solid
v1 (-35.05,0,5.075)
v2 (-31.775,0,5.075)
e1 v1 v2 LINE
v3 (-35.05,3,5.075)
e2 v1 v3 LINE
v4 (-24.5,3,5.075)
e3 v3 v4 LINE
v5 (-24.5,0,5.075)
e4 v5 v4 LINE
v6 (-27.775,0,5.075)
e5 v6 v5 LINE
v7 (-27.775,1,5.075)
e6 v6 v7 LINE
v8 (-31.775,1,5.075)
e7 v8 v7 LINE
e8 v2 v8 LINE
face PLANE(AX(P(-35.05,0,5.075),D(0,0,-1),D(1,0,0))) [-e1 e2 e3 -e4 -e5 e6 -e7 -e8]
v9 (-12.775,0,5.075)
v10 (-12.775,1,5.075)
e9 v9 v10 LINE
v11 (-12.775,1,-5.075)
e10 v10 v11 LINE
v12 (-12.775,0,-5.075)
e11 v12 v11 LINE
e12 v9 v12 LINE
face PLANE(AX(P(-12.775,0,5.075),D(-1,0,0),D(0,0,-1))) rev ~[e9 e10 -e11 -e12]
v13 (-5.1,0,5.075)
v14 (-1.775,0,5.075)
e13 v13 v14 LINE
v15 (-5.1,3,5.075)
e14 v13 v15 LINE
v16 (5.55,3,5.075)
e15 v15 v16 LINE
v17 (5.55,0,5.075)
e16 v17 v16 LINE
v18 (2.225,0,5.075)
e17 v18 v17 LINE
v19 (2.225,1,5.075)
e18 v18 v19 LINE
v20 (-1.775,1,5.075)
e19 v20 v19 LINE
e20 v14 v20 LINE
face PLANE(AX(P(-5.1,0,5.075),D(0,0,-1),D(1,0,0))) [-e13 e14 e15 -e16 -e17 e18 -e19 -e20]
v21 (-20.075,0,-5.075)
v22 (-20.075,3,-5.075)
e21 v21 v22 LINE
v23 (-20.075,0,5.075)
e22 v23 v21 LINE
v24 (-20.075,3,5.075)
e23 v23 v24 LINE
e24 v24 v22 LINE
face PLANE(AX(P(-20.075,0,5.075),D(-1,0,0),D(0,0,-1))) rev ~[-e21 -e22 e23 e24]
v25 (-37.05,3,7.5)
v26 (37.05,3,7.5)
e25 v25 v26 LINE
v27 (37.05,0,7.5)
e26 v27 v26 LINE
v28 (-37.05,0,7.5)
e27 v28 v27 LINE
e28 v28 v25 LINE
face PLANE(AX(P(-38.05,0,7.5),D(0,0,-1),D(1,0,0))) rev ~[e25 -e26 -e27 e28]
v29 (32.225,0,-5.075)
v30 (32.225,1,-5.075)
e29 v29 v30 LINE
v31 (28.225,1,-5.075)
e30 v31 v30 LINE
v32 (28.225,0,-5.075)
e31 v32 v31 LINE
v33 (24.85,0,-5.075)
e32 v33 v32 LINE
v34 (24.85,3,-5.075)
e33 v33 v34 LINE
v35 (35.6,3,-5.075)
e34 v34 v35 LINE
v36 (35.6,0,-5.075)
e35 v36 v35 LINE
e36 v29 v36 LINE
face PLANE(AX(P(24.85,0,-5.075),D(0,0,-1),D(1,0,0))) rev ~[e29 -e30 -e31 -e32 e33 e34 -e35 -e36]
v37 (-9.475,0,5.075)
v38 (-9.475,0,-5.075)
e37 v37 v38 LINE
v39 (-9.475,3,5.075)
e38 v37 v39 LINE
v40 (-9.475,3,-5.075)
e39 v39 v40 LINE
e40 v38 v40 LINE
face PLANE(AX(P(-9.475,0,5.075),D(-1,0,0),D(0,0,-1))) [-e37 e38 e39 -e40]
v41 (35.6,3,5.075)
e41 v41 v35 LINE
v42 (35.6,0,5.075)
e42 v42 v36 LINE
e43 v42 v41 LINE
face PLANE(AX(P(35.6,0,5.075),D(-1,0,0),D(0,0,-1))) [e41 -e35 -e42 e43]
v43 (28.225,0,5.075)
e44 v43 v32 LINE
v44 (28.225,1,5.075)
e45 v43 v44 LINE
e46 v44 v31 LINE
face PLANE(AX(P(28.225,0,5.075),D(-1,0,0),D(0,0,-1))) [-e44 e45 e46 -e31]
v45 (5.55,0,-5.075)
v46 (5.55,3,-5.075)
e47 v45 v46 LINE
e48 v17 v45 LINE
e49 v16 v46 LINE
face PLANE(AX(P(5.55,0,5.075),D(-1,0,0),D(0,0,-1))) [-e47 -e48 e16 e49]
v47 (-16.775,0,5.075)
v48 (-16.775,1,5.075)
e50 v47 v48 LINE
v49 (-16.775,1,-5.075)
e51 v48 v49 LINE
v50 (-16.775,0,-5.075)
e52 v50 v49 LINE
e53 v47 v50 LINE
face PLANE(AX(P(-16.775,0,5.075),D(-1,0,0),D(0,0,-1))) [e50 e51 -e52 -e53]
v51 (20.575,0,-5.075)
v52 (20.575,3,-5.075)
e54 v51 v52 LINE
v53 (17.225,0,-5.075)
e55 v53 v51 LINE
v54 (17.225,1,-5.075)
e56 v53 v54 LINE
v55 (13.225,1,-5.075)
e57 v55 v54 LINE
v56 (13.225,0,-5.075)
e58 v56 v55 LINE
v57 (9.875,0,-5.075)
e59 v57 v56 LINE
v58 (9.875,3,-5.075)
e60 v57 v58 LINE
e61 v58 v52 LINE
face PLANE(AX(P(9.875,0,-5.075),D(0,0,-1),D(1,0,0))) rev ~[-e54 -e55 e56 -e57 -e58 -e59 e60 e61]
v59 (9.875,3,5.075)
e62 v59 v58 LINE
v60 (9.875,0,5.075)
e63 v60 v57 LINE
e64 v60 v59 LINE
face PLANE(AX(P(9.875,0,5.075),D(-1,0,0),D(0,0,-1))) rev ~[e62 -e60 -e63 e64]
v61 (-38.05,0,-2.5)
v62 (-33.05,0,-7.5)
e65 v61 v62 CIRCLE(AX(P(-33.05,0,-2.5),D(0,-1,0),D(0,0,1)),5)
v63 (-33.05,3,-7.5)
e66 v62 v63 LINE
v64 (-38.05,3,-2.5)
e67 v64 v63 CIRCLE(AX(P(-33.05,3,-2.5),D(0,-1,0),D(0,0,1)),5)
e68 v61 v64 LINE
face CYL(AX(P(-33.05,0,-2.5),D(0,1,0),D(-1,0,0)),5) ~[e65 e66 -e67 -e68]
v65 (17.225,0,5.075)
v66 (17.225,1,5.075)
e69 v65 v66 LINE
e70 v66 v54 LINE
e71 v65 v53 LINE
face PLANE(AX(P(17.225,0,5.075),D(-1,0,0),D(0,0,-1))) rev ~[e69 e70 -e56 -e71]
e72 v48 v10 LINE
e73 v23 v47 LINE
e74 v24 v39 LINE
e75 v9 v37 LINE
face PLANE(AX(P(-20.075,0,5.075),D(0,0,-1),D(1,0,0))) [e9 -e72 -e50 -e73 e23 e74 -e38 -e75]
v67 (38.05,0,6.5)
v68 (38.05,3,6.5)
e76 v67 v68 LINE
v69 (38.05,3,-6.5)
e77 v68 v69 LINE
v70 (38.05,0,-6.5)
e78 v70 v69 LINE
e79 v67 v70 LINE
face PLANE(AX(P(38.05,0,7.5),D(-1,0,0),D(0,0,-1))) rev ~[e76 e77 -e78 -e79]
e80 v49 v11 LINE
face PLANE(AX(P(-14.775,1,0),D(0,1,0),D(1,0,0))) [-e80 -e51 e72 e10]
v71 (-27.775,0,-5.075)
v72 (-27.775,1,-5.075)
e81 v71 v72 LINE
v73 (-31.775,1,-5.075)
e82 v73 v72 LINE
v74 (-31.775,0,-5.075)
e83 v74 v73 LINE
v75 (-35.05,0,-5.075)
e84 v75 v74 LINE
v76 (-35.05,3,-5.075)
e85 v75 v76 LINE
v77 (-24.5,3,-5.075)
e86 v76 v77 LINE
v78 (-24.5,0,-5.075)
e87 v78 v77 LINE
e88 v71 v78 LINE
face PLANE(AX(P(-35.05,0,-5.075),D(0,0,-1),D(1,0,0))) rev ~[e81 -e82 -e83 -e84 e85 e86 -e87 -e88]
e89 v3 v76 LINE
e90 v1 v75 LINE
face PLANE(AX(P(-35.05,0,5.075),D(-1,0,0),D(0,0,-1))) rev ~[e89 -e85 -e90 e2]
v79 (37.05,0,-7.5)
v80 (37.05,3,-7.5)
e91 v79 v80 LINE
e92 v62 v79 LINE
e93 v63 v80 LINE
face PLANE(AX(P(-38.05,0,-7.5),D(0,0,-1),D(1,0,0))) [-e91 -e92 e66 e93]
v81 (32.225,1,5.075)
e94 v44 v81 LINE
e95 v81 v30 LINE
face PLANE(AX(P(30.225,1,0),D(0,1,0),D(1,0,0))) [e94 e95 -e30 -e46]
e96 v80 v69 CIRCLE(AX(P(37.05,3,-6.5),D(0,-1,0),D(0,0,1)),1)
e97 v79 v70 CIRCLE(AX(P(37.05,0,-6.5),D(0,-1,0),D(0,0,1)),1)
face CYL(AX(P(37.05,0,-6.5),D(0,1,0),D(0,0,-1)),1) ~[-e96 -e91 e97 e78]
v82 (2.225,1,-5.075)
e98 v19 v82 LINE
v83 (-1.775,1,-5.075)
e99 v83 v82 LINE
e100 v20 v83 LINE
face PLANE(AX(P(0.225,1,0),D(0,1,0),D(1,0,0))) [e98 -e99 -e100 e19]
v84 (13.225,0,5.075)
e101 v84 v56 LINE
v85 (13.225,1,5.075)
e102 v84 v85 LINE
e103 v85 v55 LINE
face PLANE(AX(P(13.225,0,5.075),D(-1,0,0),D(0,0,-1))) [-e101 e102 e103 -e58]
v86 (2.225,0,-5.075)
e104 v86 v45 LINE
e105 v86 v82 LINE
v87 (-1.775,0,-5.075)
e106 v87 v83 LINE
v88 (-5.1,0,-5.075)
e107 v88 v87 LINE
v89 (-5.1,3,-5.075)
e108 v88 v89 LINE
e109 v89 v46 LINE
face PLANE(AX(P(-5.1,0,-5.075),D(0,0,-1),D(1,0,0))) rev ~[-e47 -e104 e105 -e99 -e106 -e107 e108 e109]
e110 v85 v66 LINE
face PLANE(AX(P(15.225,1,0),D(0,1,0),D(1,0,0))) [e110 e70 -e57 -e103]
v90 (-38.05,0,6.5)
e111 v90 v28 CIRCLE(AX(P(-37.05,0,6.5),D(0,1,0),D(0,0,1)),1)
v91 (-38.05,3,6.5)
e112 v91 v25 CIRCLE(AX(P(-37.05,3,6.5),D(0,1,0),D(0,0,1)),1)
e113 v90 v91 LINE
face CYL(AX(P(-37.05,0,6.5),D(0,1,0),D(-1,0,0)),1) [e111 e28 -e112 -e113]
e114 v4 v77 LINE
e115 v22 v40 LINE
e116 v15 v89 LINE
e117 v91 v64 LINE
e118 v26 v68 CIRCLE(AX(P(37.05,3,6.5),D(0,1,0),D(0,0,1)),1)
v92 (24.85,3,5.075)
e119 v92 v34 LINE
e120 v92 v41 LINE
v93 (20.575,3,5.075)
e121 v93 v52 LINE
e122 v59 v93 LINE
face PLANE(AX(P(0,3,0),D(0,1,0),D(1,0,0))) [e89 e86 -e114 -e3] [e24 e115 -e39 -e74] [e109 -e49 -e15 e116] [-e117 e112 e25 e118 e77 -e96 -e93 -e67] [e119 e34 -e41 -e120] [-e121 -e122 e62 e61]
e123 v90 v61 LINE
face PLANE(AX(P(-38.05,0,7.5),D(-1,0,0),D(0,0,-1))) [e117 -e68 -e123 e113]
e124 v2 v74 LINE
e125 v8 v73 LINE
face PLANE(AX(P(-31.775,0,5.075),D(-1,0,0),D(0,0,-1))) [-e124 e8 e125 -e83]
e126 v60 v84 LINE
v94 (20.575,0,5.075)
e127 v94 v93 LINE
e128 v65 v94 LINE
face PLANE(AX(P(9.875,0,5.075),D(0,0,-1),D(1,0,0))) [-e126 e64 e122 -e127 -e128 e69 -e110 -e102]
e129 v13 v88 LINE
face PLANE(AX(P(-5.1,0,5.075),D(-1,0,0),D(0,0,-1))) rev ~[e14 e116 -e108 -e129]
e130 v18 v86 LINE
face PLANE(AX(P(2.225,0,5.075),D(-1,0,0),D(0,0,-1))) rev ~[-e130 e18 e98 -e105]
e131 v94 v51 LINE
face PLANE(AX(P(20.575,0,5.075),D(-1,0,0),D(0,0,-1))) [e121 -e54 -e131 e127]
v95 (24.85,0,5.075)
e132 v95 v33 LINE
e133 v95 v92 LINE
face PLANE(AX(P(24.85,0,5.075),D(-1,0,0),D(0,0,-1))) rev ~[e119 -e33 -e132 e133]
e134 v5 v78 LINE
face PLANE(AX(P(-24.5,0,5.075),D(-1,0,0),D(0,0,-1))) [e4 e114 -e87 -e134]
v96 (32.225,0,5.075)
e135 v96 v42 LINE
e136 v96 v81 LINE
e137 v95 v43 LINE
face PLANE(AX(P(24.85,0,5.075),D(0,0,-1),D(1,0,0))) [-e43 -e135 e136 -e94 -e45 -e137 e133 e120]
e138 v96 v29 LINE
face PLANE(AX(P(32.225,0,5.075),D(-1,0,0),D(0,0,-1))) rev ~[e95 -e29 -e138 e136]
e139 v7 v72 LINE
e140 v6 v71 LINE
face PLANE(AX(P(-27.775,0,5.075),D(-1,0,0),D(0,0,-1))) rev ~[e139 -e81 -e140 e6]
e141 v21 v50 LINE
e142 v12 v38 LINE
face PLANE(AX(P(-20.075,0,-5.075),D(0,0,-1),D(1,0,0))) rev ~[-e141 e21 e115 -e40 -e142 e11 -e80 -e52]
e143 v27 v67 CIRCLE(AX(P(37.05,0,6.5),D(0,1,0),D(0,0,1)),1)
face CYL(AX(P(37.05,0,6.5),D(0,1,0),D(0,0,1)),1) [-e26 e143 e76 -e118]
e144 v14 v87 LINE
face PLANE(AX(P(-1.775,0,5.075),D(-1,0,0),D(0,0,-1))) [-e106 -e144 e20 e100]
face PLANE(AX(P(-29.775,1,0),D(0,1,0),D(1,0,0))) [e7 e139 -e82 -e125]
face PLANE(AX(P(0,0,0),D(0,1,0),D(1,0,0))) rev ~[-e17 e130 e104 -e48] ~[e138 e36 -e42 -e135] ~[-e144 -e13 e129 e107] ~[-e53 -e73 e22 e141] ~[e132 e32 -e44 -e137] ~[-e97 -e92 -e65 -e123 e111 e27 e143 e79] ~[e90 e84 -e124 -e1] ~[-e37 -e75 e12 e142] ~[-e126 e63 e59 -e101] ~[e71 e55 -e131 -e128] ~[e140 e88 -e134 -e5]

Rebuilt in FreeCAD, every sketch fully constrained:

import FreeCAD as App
import Part
import Sketcher

V = App.Vector


def edges_at(feature, points):
    """Names of the edges that pass closest to the given points."""
    edges = feature.Shape.Edges
    near = lambda p: min(range(len(edges)), key=lambda i: edges[i].distToShape(Part.Vertex(*p))[0])
    return sorted({f"Edge{near(p) + 1}" for p in points})


def add_polygon(sketch, points):
    """Adds a closed chain of lines whose ends are joined by coincident constraints."""
    first, n = sketch.GeometryCount, len(points)
    for a, b in zip(points, points[1:] + points[:1]):
        sketch.addGeometry(Part.LineSegment(App.Vector(*a, 0), App.Vector(*b, 0)), False)
    for i in range(n):
        sketch.addConstraint(Sketcher.Constraint("Coincident", first + i, 2, first + (i + 1) % n, 1))

doc = App.newDocument("Part")
params = doc.addObject("Spreadsheet::Sheet", "Params")
for row, (alias, value) in enumerate([
    ("sketch1_height", "15 mm"),
    ("sketch1_width", "76.1 mm"),
    ("sketch1_width2", "10.6 mm"),
    ("sketch1_width3", "10.7 mm"),
    ("sketch1_width4", "10.55 mm"),
    ("pad1_length", "3 mm"),
    ("sketch2_width", "4 mm"),
    ("sketch2_height", "10.15 mm"),
    ("pad2_length", "1 mm"),
    ("fillet_radius", "5 mm"),
    ("fillet2_radius", "1 mm"),
], start=1):
    params.set(f"A{row}", alias)
    params.set(f"B{row}", "=" + value)
    params.setAlias(f"B{row}", alias)

body = doc.addObject("PartDesign::Body", "Body")

# Sketch on XZ plane
sketch1 = body.newObject("Sketcher::SketchObject", "Sketch")
sketch1.AttachmentSupport = (doc.getObject("XZ_Plane"), [""])
sketch1.MapMode = "FlatFace"
add_polygon(sketch1, [(-38.05, -7.5), (-38.05, 7.5), (38.05, 7.5), (38.05, -7.5)])  # lines 0-3
add_polygon(sketch1, [(-24.5, 5.075), (-35.05, 5.075), (-35.05, -5.075), (-24.5, -5.075)])  # lines 4-7
add_polygon(sketch1, [(-9.475, 5.075), (-20.075, 5.075), (-20.075, -5.075), (-9.475, -5.075)])  # lines 8-11
add_polygon(sketch1, [(5.55, 5.075), (-5.1, 5.075), (-5.1, -5.075), (5.55, -5.075)])  # lines 12-15
add_polygon(sketch1, [(20.575, 5.075), (9.875, 5.075), (9.875, -5.075), (20.575, -5.075)])  # lines 16-19
add_polygon(sketch1, [(35.6, 5.075), (24.85, 5.075), (24.85, -5.075), (35.6, -5.075)])  # lines 20-23
sketch1.addConstraint(Sketcher.Constraint("Vertical", 0))
sketch1.addConstraint(Sketcher.Constraint("Horizontal", 1))
sketch1.addConstraint(Sketcher.Constraint("Vertical", 2))
sketch1.addConstraint(Sketcher.Constraint("Horizontal", 3))
sketch1.addConstraint(Sketcher.Constraint("Horizontal", 4))
sketch1.addConstraint(Sketcher.Constraint("Vertical", 5))
sketch1.addConstraint(Sketcher.Constraint("Horizontal", 6))
sketch1.addConstraint(Sketcher.Constraint("Vertical", 7))
sketch1.addConstraint(Sketcher.Constraint("Horizontal", 8))
sketch1.addConstraint(Sketcher.Constraint("Vertical", 9))
sketch1.addConstraint(Sketcher.Constraint("Horizontal", 10))
sketch1.addConstraint(Sketcher.Constraint("Vertical", 11))
sketch1.addConstraint(Sketcher.Constraint("Horizontal", 12))
sketch1.addConstraint(Sketcher.Constraint("Vertical", 13))
sketch1.addConstraint(Sketcher.Constraint("Horizontal", 14))
sketch1.addConstraint(Sketcher.Constraint("Vertical", 15))
sketch1.addConstraint(Sketcher.Constraint("Horizontal", 16))
sketch1.addConstraint(Sketcher.Constraint("Vertical", 17))
sketch1.addConstraint(Sketcher.Constraint("Horizontal", 18))
sketch1.addConstraint(Sketcher.Constraint("Vertical", 19))
sketch1.addConstraint(Sketcher.Constraint("Horizontal", 20))
sketch1.addConstraint(Sketcher.Constraint("Vertical", 21))
sketch1.addConstraint(Sketcher.Constraint("Horizontal", 22))
sketch1.addConstraint(Sketcher.Constraint("Vertical", 23))
sketch1.addConstraint(Sketcher.Constraint("Symmetric", 0, 2, 2, 2, -1, 1))
sketch1.addConstraint(Sketcher.Constraint("Horizontal", 7, 2, 8, 2))
sketch1.addConstraint(Sketcher.Constraint("Horizontal", 6, 2, 9, 2))
sketch1.addConstraint(Sketcher.Constraint("Horizontal", 11, 2, 12, 2))
sketch1.addConstraint(Sketcher.Constraint("Horizontal", 10, 2, 13, 2))
sketch1.addConstraint(Sketcher.Constraint("Horizontal", 15, 2, 16, 2))
sketch1.addConstraint(Sketcher.Constraint("Horizontal", 14, 2, 17, 2))
sketch1.addConstraint(Sketcher.Constraint("Horizontal", 19, 2, 20, 2))
sketch1.addConstraint(Sketcher.Constraint("Horizontal", 18, 2, 21, 2))
sketch1.addConstraint(Sketcher.Constraint("DistanceY", 0, 1, 0, 2, 15.0))
sketch1.addConstraint(Sketcher.Constraint("DistanceX", 1, 1, 1, 2, 76.1))
sketch1.addConstraint(Sketcher.Constraint("DistanceX", 8, 2, 8, 1, 10.6))
sketch1.addConstraint(Sketcher.Constraint("DistanceX", 16, 2, 16, 1, 10.7))
sketch1.addConstraint(Sketcher.Constraint("DistanceX", 0, 2, 4, 2, 3.0))
sketch1.addConstraint(Sketcher.Constraint("DistanceX", 4, 2, 4, 1, 10.55))
sketch1.addConstraint(Sketcher.Constraint("DistanceX", 12, 2, 12, 1, 10.65))
sketch1.addConstraint(Sketcher.Constraint("DistanceX", 20, 2, 20, 1, 10.75))
sketch1.addConstraint(Sketcher.Constraint("DistanceY", 5, 2, 5, 1, 10.15))
sketch1.addConstraint(Sketcher.Constraint("DistanceX", 12, 2, -1, 1, 5.1))
sketch1.addConstraint(Sketcher.Constraint("DistanceX", -1, 1, 22, 2, 35.6))
sketch1.addConstraint(Sketcher.Constraint("DistanceX", 11, 2, 16, 2, 19.35))
sketch1.addConstraint(Sketcher.Constraint("DistanceY", -1, 1, 4, 2, 5.075))
sketch1.addConstraint(Sketcher.Constraint("DistanceX", 8, 2, -1, 1, 20.075))
sketch1.setExpression("Constraints[57]", "Params.sketch1_height")
sketch1.setExpression("Constraints[58]", "Params.sketch1_width")
sketch1.setExpression("Constraints[59]", "Params.sketch1_width2")
sketch1.setExpression("Constraints[60]", "Params.sketch1_width3")
sketch1.setExpression("Constraints[62]", "Params.sketch1_width4")
pad1 = body.newObject("PartDesign::Pad", "Pad")
pad1.Profile = sketch1
pad1.setExpression("Length", "Params.pad1_length")
pad1.Reversed = True

# Sketch on XZ plane
sketch2 = body.newObject("Sketcher::SketchObject", "Sketch001")
sketch2.AttachmentSupport = (doc.getObject("XZ_Plane"), [""])
sketch2.MapMode = "FlatFace"
add_polygon(sketch2, [(-31.775, -5.075), (-31.775, 5.075), (-27.775, 5.075), (-27.775, -5.075)])  # lines 0-3
add_polygon(sketch2, [(-16.775, -5.075), (-16.775, 5.075), (-12.775, 5.075), (-12.775, -5.075)])  # lines 4-7
add_polygon(sketch2, [(-1.775, -5.075), (-1.775, 5.075), (2.225, 5.075), (2.225, -5.075)])  # lines 8-11
add_polygon(sketch2, [(13.225, -5.075), (13.225, 5.075), (17.225, 5.075), (17.225, -5.075)])  # lines 12-15
add_polygon(sketch2, [(28.225, -5.075), (28.225, 5.075), (32.225, 5.075), (32.225, -5.075)])  # lines 16-19
sketch2.addConstraint(Sketcher.Constraint("Vertical", 0))
sketch2.addConstraint(Sketcher.Constraint("Horizontal", 1))
sketch2.addConstraint(Sketcher.Constraint("Vertical", 2))
sketch2.addConstraint(Sketcher.Constraint("Horizontal", 3))
sketch2.addConstraint(Sketcher.Constraint("Vertical", 4))
sketch2.addConstraint(Sketcher.Constraint("Horizontal", 5))
sketch2.addConstraint(Sketcher.Constraint("Vertical", 6))
sketch2.addConstraint(Sketcher.Constraint("Horizontal", 7))
sketch2.addConstraint(Sketcher.Constraint("Vertical", 8))
sketch2.addConstraint(Sketcher.Constraint("Horizontal", 9))
sketch2.addConstraint(Sketcher.Constraint("Vertical", 10))
sketch2.addConstraint(Sketcher.Constraint("Horizontal", 11))
sketch2.addConstraint(Sketcher.Constraint("Vertical", 12))
sketch2.addConstraint(Sketcher.Constraint("Horizontal", 13))
sketch2.addConstraint(Sketcher.Constraint("Vertical", 14))
sketch2.addConstraint(Sketcher.Constraint("Horizontal", 15))
sketch2.addConstraint(Sketcher.Constraint("Vertical", 16))
sketch2.addConstraint(Sketcher.Constraint("Horizontal", 17))
sketch2.addConstraint(Sketcher.Constraint("Vertical", 18))
sketch2.addConstraint(Sketcher.Constraint("Horizontal", 19))
sketch2.addConstraint(Sketcher.Constraint("Horizontal", 1, 2, 4, 2))
sketch2.addConstraint(Sketcher.Constraint("Horizontal", 3, 2, 6, 2))
sketch2.addConstraint(Sketcher.Constraint("Horizontal", 5, 2, 8, 2))
sketch2.addConstraint(Sketcher.Constraint("Horizontal", 7, 2, 10, 2))
sketch2.addConstraint(Sketcher.Constraint("Horizontal", 9, 2, 12, 2))
sketch2.addConstraint(Sketcher.Constraint("Horizontal", 11, 2, 14, 2))
sketch2.addConstraint(Sketcher.Constraint("Horizontal", 13, 2, 16, 2))
sketch2.addConstraint(Sketcher.Constraint("Horizontal", 15, 2, 18, 2))
sketch2.addConstraint(Sketcher.Constraint("Equal", 3, 5))
sketch2.addConstraint(Sketcher.Constraint("Equal", 7, 9))
sketch2.addConstraint(Sketcher.Constraint("Equal", 11, 13))
sketch2.addConstraint(Sketcher.Constraint("Equal", 15, 17))
sketch2.addConstraint(Sketcher.Constraint("DistanceX", 1, 1, 1, 2, 4.0))
sketch2.addConstraint(Sketcher.Constraint("DistanceX", 1, 2, 4, 2, 11.0))
sketch2.addConstraint(Sketcher.Constraint("DistanceX", 5, 2, 8, 2, 11.0))
sketch2.addConstraint(Sketcher.Constraint("DistanceX", 9, 2, 12, 2, 11.0))
sketch2.addConstraint(Sketcher.Constraint("DistanceX", 13, 2, 16, 2, 11.0))
sketch2.addConstraint(Sketcher.Constraint("DistanceY", 0, 1, 0, 2, 10.15))
sketch2.addConstraint(Sketcher.Constraint("DistanceX", 0, 2, -1, 1, 31.775))
sketch2.addConstraint(Sketcher.Constraint("DistanceY", -1, 1, 0, 2, 5.075))
sketch2.setExpression("Constraints[52]", "Params.sketch2_width")
sketch2.setExpression("Constraints[57]", "Params.sketch2_height")
pad2 = body.newObject("PartDesign::Pad", "Pad001")
pad2.Profile = sketch2
pad2.setExpression("Length", "Params.pad2_length")
pad2.Reversed = True
doc.recompute()

fillet = body.newObject("PartDesign::Fillet", "Fillet")
fillet.Base = (pad2, edges_at(pad2, [(-38.05, 1.5, -7.5)]))
fillet.setExpression("Radius", "Params.fillet_radius")
doc.recompute()

fillet2 = body.newObject("PartDesign::Fillet", "Fillet001")
fillet2.Base = (fillet, edges_at(fillet, [(-38.05, 1.5, 7.5), (38.05, 1.5, -7.5), (38.05, 1.5, 7.5)]))
fillet2.setExpression("Radius", "Params.fillet2_radius")

doc.recompute()
